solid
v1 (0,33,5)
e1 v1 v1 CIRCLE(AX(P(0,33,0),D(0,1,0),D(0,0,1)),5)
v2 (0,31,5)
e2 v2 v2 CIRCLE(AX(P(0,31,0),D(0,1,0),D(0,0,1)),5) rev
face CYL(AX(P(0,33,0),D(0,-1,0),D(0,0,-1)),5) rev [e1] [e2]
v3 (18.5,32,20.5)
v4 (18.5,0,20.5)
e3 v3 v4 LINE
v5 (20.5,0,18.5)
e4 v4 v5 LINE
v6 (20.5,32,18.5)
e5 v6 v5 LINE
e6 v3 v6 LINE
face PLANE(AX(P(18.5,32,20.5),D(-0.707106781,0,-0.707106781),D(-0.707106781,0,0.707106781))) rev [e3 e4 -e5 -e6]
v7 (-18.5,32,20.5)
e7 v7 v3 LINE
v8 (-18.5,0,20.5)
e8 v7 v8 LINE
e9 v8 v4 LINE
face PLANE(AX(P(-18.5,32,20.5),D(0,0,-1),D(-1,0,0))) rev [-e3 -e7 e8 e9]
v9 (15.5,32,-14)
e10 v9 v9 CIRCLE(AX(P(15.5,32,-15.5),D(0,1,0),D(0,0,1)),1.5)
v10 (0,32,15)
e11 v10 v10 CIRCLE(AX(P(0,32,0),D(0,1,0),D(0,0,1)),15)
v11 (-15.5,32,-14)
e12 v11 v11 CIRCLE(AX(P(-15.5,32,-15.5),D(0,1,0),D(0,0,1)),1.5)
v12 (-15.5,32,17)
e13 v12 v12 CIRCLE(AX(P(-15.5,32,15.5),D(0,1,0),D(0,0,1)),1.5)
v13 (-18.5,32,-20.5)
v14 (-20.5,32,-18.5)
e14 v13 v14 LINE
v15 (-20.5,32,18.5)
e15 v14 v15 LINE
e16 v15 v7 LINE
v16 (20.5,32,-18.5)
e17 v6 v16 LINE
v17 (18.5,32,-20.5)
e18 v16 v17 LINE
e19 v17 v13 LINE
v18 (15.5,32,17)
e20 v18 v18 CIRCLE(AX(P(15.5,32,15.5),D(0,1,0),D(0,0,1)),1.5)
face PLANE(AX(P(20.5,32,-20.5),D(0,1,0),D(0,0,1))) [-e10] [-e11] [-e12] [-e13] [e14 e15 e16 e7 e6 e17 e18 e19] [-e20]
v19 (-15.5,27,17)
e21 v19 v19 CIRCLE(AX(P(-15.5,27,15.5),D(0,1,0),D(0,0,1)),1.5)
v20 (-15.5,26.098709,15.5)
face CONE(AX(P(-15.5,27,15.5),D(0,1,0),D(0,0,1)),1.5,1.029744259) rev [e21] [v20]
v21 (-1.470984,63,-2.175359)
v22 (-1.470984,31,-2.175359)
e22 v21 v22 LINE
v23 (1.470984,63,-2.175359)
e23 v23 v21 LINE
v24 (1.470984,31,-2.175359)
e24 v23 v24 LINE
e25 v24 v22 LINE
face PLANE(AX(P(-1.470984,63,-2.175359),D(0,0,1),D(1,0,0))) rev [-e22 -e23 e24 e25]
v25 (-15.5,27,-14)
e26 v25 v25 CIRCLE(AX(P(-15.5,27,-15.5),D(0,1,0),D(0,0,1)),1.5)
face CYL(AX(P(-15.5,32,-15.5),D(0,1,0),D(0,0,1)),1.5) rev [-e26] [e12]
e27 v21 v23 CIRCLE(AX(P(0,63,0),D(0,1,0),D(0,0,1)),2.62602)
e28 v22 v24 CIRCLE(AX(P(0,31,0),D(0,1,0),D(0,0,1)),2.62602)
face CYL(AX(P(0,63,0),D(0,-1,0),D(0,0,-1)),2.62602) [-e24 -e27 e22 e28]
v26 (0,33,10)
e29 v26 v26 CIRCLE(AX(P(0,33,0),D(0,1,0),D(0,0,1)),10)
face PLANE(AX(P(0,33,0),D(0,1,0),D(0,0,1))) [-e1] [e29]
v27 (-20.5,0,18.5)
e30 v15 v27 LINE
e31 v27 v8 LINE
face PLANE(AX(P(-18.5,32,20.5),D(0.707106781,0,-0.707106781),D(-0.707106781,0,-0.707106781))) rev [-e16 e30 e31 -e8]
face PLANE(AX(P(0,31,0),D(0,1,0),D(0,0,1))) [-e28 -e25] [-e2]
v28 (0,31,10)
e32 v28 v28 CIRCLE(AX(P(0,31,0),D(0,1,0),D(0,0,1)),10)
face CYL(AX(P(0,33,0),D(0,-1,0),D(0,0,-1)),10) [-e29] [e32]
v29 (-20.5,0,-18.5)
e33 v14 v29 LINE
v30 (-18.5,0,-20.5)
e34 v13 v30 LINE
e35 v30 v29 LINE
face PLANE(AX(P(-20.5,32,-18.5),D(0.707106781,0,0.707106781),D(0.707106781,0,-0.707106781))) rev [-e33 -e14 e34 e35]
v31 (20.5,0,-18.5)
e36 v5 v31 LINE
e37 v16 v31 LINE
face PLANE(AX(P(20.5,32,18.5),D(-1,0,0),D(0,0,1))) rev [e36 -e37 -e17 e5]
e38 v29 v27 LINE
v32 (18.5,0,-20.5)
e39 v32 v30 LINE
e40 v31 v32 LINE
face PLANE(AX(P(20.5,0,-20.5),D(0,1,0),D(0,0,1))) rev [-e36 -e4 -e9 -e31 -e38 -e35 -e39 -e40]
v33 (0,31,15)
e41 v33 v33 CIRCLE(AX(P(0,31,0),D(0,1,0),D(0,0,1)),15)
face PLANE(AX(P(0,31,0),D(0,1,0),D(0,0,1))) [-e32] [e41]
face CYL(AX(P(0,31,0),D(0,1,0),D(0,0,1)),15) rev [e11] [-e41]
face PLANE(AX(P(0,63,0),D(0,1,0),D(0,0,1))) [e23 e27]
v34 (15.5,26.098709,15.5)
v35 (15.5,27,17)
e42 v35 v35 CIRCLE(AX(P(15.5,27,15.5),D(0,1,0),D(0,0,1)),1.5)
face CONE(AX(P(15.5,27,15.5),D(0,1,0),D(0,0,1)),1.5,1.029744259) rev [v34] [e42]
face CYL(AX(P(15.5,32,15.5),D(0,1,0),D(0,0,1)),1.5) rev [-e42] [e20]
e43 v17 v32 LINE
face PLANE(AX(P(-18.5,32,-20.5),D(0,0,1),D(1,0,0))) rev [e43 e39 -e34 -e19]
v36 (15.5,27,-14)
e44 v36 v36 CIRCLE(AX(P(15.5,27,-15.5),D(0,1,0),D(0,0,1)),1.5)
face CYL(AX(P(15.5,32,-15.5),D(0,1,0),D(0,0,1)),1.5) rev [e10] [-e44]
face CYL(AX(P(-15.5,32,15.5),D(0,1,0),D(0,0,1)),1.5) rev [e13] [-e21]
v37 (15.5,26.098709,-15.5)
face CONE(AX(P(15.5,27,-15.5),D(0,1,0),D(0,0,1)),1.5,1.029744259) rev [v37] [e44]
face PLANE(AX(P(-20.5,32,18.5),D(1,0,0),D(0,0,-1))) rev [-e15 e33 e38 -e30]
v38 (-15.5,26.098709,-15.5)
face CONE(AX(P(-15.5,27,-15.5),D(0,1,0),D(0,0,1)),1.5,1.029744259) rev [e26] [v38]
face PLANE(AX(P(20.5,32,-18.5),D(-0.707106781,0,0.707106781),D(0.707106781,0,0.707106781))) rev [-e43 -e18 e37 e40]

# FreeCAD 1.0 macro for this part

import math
import FreeCAD as App
import Part
import Sketcher
Q = App.Units.Quantity

doc = App.newDocument("Part")
body = doc.addObject("PartDesign::Body", "Body")

# Sketch on XZ plane
sketch1 = body.newObject("Sketcher::SketchObject", "Sketch")
sketch1.AttachmentSupport = (doc.getObject("XZ_Plane"), [""])
sketch1.MapMode = "FlatFace"
sketch1.addGeometry(Part.LineSegment(App.Vector(-18.5, -20.5, 0), App.Vector(-20.5, -18.5, 0)), False)
sketch1.addGeometry(Part.LineSegment(App.Vector(-20.5, -18.5, 0), App.Vector(-20.5, 18.5, 0)), False)
sketch1.addGeometry(Part.LineSegment(App.Vector(-20.5, 18.5, 0), App.Vector(-18.5, 20.5, 0)), False)
sketch1.addGeometry(Part.LineSegment(App.Vector(-18.5, 20.5, 0), App.Vector(18.5, 20.5, 0)), False)
sketch1.addGeometry(Part.LineSegment(App.Vector(18.5, 20.5, 0), App.Vector(20.5, 18.5, 0)), False)
sketch1.addGeometry(Part.LineSegment(App.Vector(20.5, 18.5, 0), App.Vector(20.5, -18.5, 0)), False)
sketch1.addGeometry(Part.LineSegment(App.Vector(20.5, -18.5, 0), App.Vector(18.5, -20.5, 0)), False)
sketch1.addGeometry(Part.LineSegment(App.Vector(18.5, -20.5, 0), App.Vector(-18.5, -20.5, 0)), False)
sketch1.addConstraint(Sketcher.Constraint("Coincident", 0, 2, 1, 1))
sketch1.addConstraint(Sketcher.Constraint("Coincident", 1, 2, 2, 1))
sketch1.addConstraint(Sketcher.Constraint("Coincident", 2, 2, 3, 1))
sketch1.addConstraint(Sketcher.Constraint("Coincident", 3, 2, 4, 1))
sketch1.addConstraint(Sketcher.Constraint("Coincident", 4, 2, 5, 1))
sketch1.addConstraint(Sketcher.Constraint("Coincident", 5, 2, 6, 1))
sketch1.addConstraint(Sketcher.Constraint("Coincident", 6, 2, 7, 1))
sketch1.addConstraint(Sketcher.Constraint("Coincident", 7, 2, 0, 1))
sketch1.addConstraint(Sketcher.Constraint("Vertical", 1))
sketch1.addConstraint(Sketcher.Constraint("Horizontal", 3))
sketch1.addConstraint(Sketcher.Constraint("Vertical", 5))
sketch1.addConstraint(Sketcher.Constraint("Horizontal", 7))
sketch1.addConstraint(Sketcher.Constraint("Symmetric", 0, 2, 4, 2, -1, 1))
sketch1.addConstraint(Sketcher.Constraint("Symmetric", 2, 2, 6, 2, -1, 1))
sketch1.addConstraint(Sketcher.Constraint("Perpendicular", 0, 2))
sketch1.addConstraint(Sketcher.Constraint("Perpendicular", 2, 4))
sketch1.addConstraint(Sketcher.Constraint("Perpendicular", 4, 6))
sketch1.addConstraint(Sketcher.Constraint("Horizontal", 1, 2, 4, 2))
sketch1.addConstraint(Sketcher.Constraint("Vertical", 3, 2, 6, 2))
sketch1.addConstraint(Sketcher.Constraint("Equal", 7, 1))
sketch1.addConstraint(Sketcher.Constraint("DistanceX", 3, 1, 3, 2, Q("37 mm")))
sketch1.addConstraint(Sketcher.Constraint("DistanceX", 1, 2, 2, 2, Q("2 mm")))
pad1 = body.newObject("PartDesign::Pad", "Pad")
pad1.Profile = sketch1
pad1.Length = 32
pad1.Reversed = True

# Sketch on XZ plane
sketch2 = body.newObject("Sketcher::SketchObject", "Sketch001")
sketch2.AttachmentSupport = (doc.getObject("XZ_Plane"), [""])
sketch2.MapMode = "FlatFace"
sketch2.AttachmentOffset = App.Placement(App.Vector(0, 0, -32), App.Rotation())
sketch2.addGeometry(Part.Circle(App.Vector(0, 0, 0), App.Vector(0, 0, 1), 15), False)
sketch2.addConstraint(Sketcher.Constraint("Coincident", 0, 3, -1, 1))
sketch2.addConstraint(Sketcher.Constraint("Diameter", 0, Q("30 mm")))
pocket1 = body.newObject("PartDesign::Pocket", "Pocket")
pocket1.Profile = sketch2
pocket1.Length = 1
pocket1.Reversed = True

# Sketch on XZ plane
sketch3 = body.newObject("Sketcher::SketchObject", "Sketch002")
sketch3.AttachmentSupport = (doc.getObject("XZ_Plane"), [""])
sketch3.MapMode = "FlatFace"
sketch3.AttachmentOffset = App.Placement(App.Vector(0, 0, -31), App.Rotation())
sketch3.addGeometry(Part.Circle(App.Vector(0, 0, 0), App.Vector(0, 0, 1), 10), False)
sketch3.addGeometry(Part.Circle(App.Vector(0, 0, 0), App.Vector(0, 0, 1), 5), False)
sketch3.addConstraint(Sketcher.Constraint("Coincident", 0, 3, -1, 1))
sketch3.addConstraint(Sketcher.Constraint("Coincident", 1, 3, -1, 1))
sketch3.addConstraint(Sketcher.Constraint("Diameter", 0, Q("20 mm")))
sketch3.addConstraint(Sketcher.Constraint("Diameter", 1, Q("10 mm")))
pad2 = body.newObject("PartDesign::Pad", "Pad001")
pad2.Profile = sketch3
pad2.Length = 2
pad2.Reversed = True

# Sketch on XZ plane
sketch4 = body.newObject("Sketcher::SketchObject", "Sketch003")
sketch4.AttachmentSupport = (doc.getObject("XZ_Plane"), [""])
sketch4.MapMode = "FlatFace"
sketch4.AttachmentOffset = App.Placement(App.Vector(0, 0, -31), App.Rotation())
sketch4.addGeometry(Part.LineSegment(App.Vector(1.5, -2.2, 0), App.Vector(-1.5, -2.2, 0)), False)
sketch4.addGeometry(Part.ArcOfCircle(Part.Circle(App.Vector(0, 0, 0), App.Vector(0, 0, 1), 2.6), math.radians(-56), math.radians(236)), False)
sketch4.addConstraint(Sketcher.Constraint("Coincident", 0, 1, 1, 1))
sketch4.addConstraint(Sketcher.Constraint("Coincident", 1, 2, 0, 2))
sketch4.addConstraint(Sketcher.Constraint("Horizontal", 0))
sketch4.addConstraint(Sketcher.Constraint("Coincident", 1, 3, -1, 1))
sketch4.addConstraint(Sketcher.Constraint("Radius", 1, Q("2.62602 mm")))
sketch4.addConstraint(Sketcher.Constraint("DistanceX", 0, 2, 0, 1, Q("2.941968 mm")))
pad3 = body.newObject("PartDesign::Pad", "Pad002")
pad3.Profile = sketch4
pad3.Length = 32
pad3.Reversed = True

# Sketch on XZ plane
sketch5 = body.newObject("Sketcher::SketchObject", "Sketch004")
sketch5.AttachmentSupport = (doc.getObject("XZ_Plane"), [""])
sketch5.MapMode = "FlatFace"
sketch5.AttachmentOffset = App.Placement(App.Vector(0, 0, -32), App.Rotation())
sketch5.addGeometry(Part.Circle(App.Vector(15.5, -15.5, 0), App.Vector(0, 0, 1), 1.5), False)
sketch5.addGeometry(Part.Circle(App.Vector(-15.5, -15.5, 0), App.Vector(0, 0, 1), 1.5), False)
sketch5.addGeometry(Part.Circle(App.Vector(-15.5, 15.5, 0), App.Vector(0, 0, 1), 1.5), False)
sketch5.addGeometry(Part.Circle(App.Vector(15.5, 15.5, 0), App.Vector(0, 0, 1), 1.5), False)
sketch5.addConstraint(Sketcher.Constraint("Equal", 0, 1))
sketch5.addConstraint(Sketcher.Constraint("Equal", 1, 2))
sketch5.addConstraint(Sketcher.Constraint("Equal", 2, 3))
sketch5.addConstraint(Sketcher.Constraint("Symmetric", 0, 3, 2, 3, -1, 1))
sketch5.addConstraint(Sketcher.Constraint("Symmetric", 1, 3, 3, 3, -1, 1))
sketch5.addConstraint(Sketcher.Constraint("Symmetric", 0, 3, 1, 3, -2))
sketch5.addConstraint(Sketcher.Constraint("Diameter", 0, Q("3 mm")))
sketch5.addConstraint(Sketcher.Constraint("DistanceX", 1, 3, 0, 3, Q("31 mm")))
sketch5.addConstraint(Sketcher.Constraint("DistanceY", 1, 3, 2, 3, Q("31 mm")))
doc.recompute()
hole = body.newObject("PartDesign::Hole", "Hole")
hole.Profile = sketch5
hole.ThreadType = "None"
hole.Diameter = 3
hole.DepthType = "Dimension"
hole.Depth = 5
hole.DrillPoint = "Angled"
hole.DrillPointAngle = 118
hole.Reversed = True

doc.recompute()
